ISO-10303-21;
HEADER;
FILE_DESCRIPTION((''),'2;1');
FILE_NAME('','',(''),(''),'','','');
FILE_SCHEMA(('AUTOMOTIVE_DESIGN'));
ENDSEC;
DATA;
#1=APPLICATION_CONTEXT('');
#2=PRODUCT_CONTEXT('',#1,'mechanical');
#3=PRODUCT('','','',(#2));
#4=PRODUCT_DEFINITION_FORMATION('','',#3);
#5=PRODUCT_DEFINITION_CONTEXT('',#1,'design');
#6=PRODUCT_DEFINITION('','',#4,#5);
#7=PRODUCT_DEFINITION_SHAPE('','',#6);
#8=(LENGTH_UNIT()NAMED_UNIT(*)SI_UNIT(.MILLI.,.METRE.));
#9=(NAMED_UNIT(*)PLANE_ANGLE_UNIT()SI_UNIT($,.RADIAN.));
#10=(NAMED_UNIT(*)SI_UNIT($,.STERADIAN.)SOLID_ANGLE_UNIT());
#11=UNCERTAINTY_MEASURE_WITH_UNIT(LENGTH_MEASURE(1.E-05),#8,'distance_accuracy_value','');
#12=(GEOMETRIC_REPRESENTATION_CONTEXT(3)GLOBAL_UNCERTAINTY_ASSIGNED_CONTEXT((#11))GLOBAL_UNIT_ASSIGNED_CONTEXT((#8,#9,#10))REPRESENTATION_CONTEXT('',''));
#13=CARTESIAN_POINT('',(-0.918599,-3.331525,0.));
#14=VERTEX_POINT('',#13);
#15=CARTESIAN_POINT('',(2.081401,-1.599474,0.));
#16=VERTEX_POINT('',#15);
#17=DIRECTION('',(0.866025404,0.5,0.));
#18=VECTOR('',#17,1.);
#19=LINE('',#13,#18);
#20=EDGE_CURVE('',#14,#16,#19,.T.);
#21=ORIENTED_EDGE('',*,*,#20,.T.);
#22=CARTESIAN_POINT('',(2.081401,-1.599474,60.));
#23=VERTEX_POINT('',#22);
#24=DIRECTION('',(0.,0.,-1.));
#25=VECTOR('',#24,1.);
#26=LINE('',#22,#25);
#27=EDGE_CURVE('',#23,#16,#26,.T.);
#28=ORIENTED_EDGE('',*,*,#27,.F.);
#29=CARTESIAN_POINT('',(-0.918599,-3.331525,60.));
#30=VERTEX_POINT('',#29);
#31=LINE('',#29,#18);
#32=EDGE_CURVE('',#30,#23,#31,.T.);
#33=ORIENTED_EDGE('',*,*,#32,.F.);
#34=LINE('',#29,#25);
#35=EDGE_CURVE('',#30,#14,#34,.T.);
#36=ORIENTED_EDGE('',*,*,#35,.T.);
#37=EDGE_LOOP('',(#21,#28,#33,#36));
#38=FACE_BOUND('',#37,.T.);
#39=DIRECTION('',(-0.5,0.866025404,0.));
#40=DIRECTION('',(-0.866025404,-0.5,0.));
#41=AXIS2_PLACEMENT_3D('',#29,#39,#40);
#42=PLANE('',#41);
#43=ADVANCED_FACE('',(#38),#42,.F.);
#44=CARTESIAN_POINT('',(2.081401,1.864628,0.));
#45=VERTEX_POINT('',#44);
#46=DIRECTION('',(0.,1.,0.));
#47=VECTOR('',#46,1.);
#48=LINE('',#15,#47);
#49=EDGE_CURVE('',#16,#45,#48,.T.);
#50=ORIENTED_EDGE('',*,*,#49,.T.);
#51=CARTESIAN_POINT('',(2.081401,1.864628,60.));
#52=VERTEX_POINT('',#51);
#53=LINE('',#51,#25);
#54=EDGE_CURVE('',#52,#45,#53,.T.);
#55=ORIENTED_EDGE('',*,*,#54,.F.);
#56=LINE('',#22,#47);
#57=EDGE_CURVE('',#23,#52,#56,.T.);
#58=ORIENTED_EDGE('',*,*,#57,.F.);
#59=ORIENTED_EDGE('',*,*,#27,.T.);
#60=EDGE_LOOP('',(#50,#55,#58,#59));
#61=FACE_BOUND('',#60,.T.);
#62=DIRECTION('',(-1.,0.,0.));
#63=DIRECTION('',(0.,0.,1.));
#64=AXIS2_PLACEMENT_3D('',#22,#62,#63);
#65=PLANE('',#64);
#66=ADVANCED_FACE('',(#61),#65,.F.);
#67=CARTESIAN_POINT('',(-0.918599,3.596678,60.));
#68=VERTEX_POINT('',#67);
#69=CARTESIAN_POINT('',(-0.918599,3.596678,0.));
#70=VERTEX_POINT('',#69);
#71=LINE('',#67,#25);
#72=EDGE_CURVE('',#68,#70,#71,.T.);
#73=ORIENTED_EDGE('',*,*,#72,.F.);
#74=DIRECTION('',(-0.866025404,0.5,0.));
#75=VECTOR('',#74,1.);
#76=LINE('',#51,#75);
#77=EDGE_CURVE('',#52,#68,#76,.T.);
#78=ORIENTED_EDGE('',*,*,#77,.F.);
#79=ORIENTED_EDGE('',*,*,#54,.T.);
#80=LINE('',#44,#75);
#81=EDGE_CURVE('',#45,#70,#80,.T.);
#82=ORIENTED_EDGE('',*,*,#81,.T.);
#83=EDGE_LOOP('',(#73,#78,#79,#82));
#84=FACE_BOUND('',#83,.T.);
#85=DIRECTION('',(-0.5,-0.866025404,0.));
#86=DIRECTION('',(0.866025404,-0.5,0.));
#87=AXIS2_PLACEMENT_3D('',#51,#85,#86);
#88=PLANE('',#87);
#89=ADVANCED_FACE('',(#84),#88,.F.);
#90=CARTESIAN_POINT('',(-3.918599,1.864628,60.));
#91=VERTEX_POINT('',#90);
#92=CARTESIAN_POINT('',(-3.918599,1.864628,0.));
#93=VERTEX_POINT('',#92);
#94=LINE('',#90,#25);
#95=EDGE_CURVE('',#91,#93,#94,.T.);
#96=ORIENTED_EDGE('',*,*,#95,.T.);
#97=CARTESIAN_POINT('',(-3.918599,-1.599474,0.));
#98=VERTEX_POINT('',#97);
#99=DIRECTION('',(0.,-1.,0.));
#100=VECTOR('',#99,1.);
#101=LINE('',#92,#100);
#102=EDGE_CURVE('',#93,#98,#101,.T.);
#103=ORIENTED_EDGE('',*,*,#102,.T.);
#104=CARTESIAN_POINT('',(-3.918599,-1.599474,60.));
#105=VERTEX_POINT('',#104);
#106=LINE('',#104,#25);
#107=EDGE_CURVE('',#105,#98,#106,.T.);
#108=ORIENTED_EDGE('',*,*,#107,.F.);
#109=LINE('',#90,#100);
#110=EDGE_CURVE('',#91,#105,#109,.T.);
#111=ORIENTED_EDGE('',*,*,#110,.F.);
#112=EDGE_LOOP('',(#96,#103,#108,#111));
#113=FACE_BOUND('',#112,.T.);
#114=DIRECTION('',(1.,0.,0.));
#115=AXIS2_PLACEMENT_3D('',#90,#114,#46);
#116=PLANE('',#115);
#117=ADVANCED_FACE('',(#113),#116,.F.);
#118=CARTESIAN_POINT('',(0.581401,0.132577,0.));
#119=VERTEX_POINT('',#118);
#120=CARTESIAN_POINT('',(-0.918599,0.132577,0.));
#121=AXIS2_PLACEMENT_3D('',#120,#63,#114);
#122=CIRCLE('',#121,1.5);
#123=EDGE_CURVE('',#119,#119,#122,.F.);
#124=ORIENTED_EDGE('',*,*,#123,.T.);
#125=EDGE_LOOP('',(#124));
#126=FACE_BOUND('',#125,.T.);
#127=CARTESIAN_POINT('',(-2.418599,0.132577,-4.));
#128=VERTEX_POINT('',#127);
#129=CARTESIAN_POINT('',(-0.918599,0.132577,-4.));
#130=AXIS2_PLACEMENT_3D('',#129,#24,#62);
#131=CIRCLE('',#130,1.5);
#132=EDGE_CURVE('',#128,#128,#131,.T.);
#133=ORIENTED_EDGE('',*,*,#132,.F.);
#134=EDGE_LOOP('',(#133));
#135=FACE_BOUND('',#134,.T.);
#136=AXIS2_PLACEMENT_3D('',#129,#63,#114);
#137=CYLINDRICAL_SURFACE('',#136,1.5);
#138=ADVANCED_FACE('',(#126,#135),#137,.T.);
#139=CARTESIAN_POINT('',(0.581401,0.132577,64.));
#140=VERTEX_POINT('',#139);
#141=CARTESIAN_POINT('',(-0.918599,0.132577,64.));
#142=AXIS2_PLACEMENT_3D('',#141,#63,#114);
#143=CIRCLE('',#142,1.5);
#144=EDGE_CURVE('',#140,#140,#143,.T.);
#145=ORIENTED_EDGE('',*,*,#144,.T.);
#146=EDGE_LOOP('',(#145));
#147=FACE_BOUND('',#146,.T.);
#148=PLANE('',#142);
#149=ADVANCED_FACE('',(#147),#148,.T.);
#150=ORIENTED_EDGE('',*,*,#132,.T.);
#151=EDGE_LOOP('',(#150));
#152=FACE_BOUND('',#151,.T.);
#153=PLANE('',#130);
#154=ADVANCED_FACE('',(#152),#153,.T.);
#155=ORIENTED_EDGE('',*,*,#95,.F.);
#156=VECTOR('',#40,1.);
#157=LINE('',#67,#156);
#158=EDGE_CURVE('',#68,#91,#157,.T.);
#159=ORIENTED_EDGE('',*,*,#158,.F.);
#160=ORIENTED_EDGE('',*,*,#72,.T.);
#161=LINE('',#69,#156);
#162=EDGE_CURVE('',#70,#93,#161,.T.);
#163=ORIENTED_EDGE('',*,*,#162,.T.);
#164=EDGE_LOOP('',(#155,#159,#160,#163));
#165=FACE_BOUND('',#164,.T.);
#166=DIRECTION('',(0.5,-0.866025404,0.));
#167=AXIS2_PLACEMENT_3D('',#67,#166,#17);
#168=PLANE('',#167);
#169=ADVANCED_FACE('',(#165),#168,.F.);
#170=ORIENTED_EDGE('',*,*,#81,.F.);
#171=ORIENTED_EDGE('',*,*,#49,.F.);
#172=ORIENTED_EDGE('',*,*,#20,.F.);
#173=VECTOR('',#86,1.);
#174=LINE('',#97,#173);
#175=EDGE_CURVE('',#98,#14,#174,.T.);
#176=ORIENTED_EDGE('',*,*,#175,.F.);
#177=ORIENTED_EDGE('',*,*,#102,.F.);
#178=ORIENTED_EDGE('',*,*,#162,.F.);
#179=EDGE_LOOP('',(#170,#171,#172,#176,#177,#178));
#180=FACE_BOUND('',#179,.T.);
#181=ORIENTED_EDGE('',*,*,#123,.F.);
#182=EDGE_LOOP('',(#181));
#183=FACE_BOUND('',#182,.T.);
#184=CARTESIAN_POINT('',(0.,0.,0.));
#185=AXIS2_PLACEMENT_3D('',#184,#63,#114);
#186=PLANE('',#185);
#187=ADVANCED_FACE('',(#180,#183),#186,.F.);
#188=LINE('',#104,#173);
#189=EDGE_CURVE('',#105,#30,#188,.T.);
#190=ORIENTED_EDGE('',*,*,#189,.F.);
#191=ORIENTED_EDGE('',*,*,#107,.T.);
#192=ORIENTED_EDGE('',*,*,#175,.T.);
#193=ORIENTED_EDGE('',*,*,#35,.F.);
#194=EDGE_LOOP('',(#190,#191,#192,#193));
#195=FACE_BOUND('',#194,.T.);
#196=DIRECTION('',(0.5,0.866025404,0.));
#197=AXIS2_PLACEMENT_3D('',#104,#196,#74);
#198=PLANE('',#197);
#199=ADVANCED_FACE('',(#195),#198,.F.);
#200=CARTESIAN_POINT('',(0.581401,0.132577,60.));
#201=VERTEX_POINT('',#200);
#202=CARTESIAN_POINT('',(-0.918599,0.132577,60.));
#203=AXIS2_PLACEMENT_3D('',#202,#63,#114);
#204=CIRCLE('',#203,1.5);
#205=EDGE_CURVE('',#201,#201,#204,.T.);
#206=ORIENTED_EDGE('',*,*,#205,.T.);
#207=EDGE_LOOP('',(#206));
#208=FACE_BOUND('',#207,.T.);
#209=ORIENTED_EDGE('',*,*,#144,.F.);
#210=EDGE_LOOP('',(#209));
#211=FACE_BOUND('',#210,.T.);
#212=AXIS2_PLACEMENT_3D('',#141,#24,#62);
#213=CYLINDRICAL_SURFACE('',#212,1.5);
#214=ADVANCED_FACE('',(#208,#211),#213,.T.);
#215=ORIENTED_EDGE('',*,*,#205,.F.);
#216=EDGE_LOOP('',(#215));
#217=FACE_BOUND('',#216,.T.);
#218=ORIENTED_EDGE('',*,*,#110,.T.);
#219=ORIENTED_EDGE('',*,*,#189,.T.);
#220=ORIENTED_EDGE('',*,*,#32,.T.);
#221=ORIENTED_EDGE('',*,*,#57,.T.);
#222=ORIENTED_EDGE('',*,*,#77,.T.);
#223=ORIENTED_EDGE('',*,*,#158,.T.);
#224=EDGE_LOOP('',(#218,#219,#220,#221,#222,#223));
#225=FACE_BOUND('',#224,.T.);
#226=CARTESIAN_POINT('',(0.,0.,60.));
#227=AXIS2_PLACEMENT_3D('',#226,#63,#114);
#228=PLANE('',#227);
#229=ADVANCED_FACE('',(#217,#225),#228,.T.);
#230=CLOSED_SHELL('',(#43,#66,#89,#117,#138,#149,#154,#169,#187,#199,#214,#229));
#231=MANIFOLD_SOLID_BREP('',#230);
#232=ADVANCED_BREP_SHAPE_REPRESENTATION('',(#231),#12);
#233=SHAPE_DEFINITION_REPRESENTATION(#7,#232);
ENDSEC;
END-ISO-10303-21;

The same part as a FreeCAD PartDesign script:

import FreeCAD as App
import Part
import Sketcher
from FreeCAD import Vector
Q = App.Units.Quantity


def add_polygon(sketch, points):
    """Adds a closed chain of lines whose ends are joined by coincident constraints."""
    first, n = sketch.GeometryCount, len(points)
    for a, b in zip(points, points[1:] + points[:1]):
        sketch.addGeometry(Part.LineSegment(App.Vector(*a, 0), App.Vector(*b, 0)), False)
    for i in range(n):
        sketch.addConstraint(Sketcher.Constraint("Coincident", first + i, 2, first + (i + 1) % n, 1))

doc = App.newDocument("Part")
body = doc.addObject("PartDesign::Body", "Body")

sketch1 = body.newObject("Sketcher::SketchObject", "Sketch")
sketch1.AttachmentSupport = (doc.getObject("XY_Plane"), [""])
sketch1.MapMode = "FlatFace"
add_polygon(sketch1, [(-0.9, -3.3), (2.1, -1.6), (2.1, 1.9), (-0.9, 3.6), (-3.9, 1.9), (-3.9, -1.6)])
sketch1.addConstraint(Sketcher.Constraint("Vertical", 1))
sketch1.addConstraint(Sketcher.Constraint("Vertical", 4))
sketch1.addConstraint(Sketcher.Constraint("Parallel", 0, 3))
sketch1.addConstraint(Sketcher.Constraint("Parallel", 2, 5))
sketch1.addConstraint(Sketcher.Constraint("Horizontal", 1, 2, 3, 2))
sketch1.addConstraint(Sketcher.Constraint("Horizontal", 0, 2, 4, 2))
sketch1.addConstraint(Sketcher.Constraint("Vertical", 2, 2, 5, 2))
sketch1.addConstraint(Sketcher.Constraint("Angle", 0, Q("30 deg")))
sketch1.addConstraint(Sketcher.Constraint("DistanceX", 2, 2, 1, 2, Q("3 mm")))
sketch1.addConstraint(Sketcher.Constraint("DistanceY", 1, 1, 1, 2, Q("3.464102 mm")))
sketch1.addConstraint(Sketcher.Constraint("DistanceX", -1, 1, 0, 2, Q("2.081401 mm")))
sketch1.addConstraint(Sketcher.Constraint("DistanceY", -1, 1, 2, 2, Q("3.596678 mm")))
pad1 = body.newObject("PartDesign::Pad", "Pad")
pad1.Profile = sketch1
pad1.Length = 60

sketch2 = body.newObject("Sketcher::SketchObject", "Sketch001")
sketch2.AttachmentSupport = (doc.getObject("XY_Plane"), [""])
sketch2.MapMode = "FlatFace"
sketch2.AttachmentOffset = App.Placement(Vector(0, 0, 60), App.Rotation())
sketch2.addGeometry(Part.Circle(Vector(-0.9, 0.1, 0), Vector(0, 0, 1), 1.5), False)
sketch2.addConstraint(Sketcher.Constraint("Diameter", 0, Q("3 mm")))
sketch2.addConstraint(Sketcher.Constraint("DistanceX", 0, 3, -1, 1, Q("0.918599 mm")))
sketch2.addConstraint(Sketcher.Constraint("DistanceY", -1, 1, 0, 3, Q("0.132577 mm")))
pad2 = body.newObject("PartDesign::Pad", "Pad001")
pad2.Profile = sketch2
pad2.Length = 4

sketch3 = body.newObject("Sketcher::SketchObject", "Sketch002")
sketch3.AttachmentSupport = (doc.getObject("XY_Plane"), [""])
sketch3.MapMode = "FlatFace"
sketch3.addGeometry(Part.Circle(Vector(-0.9, 0.1, 0), Vector(0, 0, 1), 1.5), False)
sketch3.addConstraint(Sketcher.Constraint("Diameter", 0, Q("3 mm")))
sketch3.addConstraint(Sketcher.Constraint("DistanceX", 0, 3, -1, 1, Q("0.918599 mm")))
sketch3.addConstraint(Sketcher.Constraint("DistanceY", -1, 1, 0, 3, Q("0.132577 mm")))
pad3 = body.newObject("PartDesign::Pad", "Pad002")
pad3.Profile = sketch3
pad3.Length = 4
pad3.Reversed = True

doc.recompute()
